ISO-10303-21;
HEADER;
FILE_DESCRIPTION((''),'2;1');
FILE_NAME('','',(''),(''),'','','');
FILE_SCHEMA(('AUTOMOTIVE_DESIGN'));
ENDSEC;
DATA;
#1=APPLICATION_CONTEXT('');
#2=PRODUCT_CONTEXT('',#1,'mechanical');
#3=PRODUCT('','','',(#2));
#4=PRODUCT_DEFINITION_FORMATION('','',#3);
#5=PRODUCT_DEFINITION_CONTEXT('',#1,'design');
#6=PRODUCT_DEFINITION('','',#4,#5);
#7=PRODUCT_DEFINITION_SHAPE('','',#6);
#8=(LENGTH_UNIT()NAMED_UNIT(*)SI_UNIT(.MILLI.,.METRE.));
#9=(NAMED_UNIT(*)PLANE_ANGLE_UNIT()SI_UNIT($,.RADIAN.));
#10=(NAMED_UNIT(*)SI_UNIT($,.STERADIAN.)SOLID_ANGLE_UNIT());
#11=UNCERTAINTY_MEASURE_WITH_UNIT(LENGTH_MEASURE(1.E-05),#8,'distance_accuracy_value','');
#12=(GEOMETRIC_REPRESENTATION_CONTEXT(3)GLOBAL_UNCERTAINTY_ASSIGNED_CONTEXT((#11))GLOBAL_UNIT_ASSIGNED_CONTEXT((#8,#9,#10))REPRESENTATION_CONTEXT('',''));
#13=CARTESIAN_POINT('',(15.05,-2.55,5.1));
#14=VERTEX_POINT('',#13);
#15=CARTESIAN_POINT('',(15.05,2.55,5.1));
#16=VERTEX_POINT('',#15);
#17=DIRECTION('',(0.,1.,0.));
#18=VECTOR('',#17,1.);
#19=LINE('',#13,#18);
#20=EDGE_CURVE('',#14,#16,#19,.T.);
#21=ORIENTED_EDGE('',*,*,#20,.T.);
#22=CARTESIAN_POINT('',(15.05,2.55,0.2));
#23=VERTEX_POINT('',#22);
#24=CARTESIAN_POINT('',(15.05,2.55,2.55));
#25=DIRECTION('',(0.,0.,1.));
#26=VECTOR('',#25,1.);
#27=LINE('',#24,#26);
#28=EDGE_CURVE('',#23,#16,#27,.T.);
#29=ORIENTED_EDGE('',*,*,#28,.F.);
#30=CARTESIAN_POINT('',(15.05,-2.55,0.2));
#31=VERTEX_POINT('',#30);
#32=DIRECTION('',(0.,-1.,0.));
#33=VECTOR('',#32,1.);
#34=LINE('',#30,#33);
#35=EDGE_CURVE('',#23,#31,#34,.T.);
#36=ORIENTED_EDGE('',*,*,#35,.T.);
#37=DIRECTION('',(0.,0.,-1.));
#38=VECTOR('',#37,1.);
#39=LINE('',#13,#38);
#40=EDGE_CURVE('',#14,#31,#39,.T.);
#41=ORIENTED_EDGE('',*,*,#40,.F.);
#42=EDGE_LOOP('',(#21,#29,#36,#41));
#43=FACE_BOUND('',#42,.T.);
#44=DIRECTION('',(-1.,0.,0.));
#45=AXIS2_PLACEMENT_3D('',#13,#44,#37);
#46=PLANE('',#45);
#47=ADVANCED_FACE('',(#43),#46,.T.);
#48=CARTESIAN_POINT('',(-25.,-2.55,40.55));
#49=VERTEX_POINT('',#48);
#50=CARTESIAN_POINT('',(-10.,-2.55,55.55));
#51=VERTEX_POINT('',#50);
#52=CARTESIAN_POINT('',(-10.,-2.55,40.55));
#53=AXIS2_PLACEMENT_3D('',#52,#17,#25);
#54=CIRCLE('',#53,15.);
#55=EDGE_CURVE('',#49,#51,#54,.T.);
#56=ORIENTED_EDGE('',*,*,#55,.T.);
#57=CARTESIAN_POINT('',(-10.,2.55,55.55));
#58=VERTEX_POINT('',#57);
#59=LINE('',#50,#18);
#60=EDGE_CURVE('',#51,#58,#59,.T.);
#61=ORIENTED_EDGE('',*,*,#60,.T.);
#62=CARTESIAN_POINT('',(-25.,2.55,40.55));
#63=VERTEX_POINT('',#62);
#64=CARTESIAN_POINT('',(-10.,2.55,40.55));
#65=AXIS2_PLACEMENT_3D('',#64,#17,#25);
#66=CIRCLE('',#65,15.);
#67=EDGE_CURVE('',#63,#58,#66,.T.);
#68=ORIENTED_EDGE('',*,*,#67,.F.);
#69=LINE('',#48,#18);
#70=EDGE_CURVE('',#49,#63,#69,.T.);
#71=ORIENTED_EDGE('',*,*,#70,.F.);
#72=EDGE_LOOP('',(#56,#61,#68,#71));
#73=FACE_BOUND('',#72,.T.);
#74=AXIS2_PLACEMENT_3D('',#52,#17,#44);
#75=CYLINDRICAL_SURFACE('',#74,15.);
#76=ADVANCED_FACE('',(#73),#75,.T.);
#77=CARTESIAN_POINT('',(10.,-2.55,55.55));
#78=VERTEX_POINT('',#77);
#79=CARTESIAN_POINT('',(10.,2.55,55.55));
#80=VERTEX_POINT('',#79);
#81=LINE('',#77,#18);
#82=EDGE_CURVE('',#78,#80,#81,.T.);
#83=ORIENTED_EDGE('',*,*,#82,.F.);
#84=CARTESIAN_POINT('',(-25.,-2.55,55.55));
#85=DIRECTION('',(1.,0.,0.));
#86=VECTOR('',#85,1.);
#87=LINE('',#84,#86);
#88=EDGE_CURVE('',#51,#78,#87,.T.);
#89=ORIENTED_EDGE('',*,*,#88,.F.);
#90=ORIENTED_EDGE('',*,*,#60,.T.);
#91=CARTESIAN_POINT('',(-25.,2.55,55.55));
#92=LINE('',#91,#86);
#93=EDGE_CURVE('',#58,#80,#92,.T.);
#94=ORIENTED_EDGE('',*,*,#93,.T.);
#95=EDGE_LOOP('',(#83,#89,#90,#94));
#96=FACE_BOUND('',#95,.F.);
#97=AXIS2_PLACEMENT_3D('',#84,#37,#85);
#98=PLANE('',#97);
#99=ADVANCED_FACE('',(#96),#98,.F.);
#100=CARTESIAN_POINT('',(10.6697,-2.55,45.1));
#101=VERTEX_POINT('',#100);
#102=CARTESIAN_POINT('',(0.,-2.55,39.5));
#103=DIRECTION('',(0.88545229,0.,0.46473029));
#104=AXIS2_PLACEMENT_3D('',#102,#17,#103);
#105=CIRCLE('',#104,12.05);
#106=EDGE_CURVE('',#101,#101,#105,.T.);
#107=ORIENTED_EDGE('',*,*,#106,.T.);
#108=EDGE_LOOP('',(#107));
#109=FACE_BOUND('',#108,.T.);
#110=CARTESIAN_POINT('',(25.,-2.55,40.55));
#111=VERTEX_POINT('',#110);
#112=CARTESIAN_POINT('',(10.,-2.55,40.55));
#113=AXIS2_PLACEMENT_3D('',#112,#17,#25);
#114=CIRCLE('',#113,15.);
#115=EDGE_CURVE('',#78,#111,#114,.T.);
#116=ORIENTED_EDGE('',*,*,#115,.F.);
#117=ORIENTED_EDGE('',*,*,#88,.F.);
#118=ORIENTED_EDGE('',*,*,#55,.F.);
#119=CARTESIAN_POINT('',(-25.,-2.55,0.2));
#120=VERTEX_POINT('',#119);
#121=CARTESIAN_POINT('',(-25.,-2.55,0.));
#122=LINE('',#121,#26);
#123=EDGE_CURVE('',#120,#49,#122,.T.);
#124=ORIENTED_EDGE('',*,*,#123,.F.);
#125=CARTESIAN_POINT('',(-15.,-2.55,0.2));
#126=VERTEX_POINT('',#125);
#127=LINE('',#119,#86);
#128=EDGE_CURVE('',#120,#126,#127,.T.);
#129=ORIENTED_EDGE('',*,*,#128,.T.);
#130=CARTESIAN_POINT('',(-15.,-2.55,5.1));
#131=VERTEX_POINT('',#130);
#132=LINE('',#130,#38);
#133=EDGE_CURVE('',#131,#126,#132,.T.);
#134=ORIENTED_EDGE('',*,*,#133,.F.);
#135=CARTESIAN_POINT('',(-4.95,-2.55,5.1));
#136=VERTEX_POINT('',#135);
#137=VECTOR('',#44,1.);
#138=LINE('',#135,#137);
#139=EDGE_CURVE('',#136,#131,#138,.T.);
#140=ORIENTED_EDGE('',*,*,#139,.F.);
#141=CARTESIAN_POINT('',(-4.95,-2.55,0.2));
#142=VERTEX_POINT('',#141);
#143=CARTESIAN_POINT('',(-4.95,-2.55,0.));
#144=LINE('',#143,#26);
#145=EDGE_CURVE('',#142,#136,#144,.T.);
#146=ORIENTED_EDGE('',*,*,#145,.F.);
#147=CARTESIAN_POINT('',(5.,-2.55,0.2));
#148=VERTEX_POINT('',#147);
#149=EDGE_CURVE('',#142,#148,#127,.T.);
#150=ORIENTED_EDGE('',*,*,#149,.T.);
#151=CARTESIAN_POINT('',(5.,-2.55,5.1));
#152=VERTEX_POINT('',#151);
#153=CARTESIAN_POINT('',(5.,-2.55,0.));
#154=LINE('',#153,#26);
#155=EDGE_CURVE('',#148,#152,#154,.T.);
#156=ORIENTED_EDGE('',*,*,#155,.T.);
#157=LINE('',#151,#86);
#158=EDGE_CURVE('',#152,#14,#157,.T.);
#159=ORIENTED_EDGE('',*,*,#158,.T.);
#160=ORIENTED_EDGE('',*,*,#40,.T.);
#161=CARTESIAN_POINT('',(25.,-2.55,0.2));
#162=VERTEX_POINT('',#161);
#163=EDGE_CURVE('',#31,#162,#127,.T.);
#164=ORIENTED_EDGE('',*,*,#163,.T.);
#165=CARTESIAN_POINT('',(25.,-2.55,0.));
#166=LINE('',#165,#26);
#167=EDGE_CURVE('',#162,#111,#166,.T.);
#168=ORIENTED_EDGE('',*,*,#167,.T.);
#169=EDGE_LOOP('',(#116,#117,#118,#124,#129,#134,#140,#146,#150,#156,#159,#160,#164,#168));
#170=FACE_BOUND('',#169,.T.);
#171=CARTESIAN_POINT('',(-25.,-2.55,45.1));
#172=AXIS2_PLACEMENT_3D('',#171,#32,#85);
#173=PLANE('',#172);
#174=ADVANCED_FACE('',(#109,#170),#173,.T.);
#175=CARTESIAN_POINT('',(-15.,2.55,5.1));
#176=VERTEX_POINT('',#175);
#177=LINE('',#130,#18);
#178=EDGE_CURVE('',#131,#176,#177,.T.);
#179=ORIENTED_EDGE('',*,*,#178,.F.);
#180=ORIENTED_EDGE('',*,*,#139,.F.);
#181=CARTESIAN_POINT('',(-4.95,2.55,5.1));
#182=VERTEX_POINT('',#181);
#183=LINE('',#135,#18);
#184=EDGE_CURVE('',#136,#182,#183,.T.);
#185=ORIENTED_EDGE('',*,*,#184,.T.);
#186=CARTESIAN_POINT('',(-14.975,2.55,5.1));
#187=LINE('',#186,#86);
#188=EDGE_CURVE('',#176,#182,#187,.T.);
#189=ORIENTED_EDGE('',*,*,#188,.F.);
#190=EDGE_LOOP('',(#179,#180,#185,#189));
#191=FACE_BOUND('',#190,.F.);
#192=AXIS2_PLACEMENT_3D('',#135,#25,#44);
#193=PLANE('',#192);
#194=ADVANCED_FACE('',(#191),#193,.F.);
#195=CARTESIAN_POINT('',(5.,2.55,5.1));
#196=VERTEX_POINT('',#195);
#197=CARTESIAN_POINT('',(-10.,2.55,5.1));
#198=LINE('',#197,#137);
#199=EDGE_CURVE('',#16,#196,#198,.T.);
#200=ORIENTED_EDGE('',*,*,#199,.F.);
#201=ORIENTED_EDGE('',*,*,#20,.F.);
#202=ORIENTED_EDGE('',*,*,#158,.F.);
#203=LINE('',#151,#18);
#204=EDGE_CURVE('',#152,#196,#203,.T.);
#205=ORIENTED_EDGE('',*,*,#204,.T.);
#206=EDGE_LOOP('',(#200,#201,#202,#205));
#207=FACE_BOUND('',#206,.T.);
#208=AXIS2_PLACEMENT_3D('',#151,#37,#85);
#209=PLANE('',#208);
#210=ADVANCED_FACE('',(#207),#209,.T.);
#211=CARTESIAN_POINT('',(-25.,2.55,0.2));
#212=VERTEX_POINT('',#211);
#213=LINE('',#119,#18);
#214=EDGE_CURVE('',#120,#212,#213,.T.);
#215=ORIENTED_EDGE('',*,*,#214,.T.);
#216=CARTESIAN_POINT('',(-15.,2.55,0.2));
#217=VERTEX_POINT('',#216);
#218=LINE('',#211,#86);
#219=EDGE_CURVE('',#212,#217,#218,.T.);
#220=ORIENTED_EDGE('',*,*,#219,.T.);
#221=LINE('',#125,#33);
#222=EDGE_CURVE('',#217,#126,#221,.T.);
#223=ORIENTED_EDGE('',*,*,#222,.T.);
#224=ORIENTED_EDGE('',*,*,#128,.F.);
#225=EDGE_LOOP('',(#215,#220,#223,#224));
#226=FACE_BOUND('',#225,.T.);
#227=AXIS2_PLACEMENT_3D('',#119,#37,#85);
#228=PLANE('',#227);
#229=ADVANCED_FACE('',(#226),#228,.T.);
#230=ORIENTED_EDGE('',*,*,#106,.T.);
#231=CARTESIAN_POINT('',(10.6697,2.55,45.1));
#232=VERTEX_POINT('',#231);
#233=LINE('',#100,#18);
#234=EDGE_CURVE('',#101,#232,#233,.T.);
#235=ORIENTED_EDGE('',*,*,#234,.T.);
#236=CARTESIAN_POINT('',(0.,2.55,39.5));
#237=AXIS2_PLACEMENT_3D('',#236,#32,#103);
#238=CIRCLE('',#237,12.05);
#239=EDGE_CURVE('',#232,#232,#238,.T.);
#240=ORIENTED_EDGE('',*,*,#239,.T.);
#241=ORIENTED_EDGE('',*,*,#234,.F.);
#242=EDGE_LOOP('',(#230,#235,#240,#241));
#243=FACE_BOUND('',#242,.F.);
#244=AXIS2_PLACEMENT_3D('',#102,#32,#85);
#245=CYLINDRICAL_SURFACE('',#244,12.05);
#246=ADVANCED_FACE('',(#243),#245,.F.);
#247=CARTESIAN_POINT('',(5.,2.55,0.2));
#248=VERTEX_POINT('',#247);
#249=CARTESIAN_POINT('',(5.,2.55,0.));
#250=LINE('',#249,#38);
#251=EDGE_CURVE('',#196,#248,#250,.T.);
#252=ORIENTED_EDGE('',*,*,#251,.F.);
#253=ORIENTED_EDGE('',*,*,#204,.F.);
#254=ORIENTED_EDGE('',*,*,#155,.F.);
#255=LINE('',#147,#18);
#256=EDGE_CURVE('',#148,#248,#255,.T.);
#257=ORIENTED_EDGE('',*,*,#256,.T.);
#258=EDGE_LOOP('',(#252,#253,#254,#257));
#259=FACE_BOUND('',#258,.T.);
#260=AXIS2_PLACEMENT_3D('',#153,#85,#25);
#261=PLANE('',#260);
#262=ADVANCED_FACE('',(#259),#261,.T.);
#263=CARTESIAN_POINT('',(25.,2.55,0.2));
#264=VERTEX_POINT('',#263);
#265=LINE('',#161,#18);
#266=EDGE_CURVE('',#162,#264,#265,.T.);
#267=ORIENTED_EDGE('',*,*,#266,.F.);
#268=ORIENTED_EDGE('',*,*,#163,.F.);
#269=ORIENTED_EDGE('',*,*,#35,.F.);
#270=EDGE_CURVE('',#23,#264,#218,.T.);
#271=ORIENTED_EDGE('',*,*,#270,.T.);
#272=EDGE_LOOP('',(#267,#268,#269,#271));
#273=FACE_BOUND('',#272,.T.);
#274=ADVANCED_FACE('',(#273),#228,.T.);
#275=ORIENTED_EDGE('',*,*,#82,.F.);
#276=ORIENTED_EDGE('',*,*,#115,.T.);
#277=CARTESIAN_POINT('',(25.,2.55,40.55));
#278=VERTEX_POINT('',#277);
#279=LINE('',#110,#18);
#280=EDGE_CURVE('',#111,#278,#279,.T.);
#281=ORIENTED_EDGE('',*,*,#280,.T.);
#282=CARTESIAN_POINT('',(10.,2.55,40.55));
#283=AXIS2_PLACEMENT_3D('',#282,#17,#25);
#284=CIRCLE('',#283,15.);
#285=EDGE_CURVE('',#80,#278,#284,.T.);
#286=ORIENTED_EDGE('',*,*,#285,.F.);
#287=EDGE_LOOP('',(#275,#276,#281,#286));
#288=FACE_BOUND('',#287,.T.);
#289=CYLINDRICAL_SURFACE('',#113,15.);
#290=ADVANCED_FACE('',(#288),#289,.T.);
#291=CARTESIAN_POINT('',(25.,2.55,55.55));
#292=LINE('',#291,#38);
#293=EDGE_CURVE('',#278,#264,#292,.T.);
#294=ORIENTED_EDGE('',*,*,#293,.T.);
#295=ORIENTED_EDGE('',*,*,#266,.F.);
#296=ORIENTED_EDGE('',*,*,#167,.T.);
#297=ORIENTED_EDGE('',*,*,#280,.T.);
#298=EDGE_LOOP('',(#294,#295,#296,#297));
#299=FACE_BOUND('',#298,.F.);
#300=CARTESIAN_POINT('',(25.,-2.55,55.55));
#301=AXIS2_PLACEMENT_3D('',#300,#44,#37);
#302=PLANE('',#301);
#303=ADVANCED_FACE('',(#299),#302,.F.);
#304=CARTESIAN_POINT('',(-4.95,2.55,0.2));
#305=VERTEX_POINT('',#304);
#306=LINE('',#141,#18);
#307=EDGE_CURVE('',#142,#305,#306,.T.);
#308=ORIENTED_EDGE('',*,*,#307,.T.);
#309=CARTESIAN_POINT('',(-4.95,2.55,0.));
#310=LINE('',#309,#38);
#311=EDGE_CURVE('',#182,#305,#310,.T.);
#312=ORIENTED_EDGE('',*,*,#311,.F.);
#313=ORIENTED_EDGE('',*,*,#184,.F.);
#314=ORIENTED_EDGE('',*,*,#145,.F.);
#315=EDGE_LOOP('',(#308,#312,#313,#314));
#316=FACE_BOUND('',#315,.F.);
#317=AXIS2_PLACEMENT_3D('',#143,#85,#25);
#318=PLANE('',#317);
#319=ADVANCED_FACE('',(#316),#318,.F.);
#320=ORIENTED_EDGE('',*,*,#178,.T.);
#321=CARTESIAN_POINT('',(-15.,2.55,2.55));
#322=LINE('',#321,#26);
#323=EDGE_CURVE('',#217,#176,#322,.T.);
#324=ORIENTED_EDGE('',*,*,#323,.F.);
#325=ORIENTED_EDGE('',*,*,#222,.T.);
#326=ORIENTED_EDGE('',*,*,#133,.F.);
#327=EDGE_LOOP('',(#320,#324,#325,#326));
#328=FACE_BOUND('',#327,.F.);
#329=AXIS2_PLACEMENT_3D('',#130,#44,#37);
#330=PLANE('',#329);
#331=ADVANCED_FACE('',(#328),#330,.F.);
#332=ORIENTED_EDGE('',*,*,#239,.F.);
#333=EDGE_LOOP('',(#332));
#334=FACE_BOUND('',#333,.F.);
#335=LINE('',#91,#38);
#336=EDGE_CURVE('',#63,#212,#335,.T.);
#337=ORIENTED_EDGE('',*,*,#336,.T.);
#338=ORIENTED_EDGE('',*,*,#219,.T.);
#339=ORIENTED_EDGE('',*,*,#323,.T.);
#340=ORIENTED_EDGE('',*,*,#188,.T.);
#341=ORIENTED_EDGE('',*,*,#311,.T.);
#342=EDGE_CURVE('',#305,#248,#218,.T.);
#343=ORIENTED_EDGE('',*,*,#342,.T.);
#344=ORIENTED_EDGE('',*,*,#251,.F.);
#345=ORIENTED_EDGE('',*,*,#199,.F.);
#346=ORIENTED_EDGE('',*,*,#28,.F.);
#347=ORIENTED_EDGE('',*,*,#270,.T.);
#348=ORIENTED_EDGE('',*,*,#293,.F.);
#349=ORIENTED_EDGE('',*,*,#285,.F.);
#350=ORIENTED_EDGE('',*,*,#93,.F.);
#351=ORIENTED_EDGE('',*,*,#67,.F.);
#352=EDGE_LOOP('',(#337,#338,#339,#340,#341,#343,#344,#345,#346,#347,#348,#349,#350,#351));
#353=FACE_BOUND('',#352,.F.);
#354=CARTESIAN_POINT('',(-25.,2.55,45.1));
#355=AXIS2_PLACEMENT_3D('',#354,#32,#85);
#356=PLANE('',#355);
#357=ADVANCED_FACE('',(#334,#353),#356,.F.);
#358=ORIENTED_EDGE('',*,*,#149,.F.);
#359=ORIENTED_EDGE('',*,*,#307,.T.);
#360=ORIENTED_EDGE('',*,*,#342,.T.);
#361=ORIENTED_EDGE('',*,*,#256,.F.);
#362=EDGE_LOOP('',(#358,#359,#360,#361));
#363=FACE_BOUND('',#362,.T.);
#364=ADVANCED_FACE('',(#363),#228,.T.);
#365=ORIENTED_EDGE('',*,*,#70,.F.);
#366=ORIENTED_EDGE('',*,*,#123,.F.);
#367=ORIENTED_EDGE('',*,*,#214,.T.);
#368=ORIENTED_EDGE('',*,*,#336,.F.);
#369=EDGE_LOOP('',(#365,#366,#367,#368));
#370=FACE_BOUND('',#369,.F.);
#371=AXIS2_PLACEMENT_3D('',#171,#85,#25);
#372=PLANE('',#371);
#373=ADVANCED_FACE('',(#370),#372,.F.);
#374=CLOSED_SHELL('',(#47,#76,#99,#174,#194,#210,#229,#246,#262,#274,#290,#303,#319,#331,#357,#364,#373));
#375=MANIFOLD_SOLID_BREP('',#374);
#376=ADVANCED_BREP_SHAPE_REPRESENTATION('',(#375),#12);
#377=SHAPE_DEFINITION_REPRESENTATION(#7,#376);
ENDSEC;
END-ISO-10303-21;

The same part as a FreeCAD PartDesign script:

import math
import FreeCAD as App
import Part
import Sketcher

V = App.Vector
Q = App.Units.Quantity


def edges_at(feature, points):
    """Names of the edges that pass closest to the given points."""
    edges = feature.Shape.Edges
    near = lambda p: min(range(len(edges)), key=lambda i: edges[i].distToShape(Part.Vertex(*p))[0])
    return sorted({f"Edge{near(p) + 1}" for p in points})


def add_polygon(sketch, points):
    """Adds a closed chain of lines whose ends are joined by coincident constraints."""
    first, n = sketch.GeometryCount, len(points)
    for a, b in zip(points, points[1:] + points[:1]):
        sketch.addGeometry(Part.LineSegment(App.Vector(*a, 0), App.Vector(*b, 0)), False)
    for i in range(n):
        sketch.addConstraint(Sketcher.Constraint("Coincident", first + i, 2, first + (i + 1) % n, 1))

doc = App.newDocument("Part")
params = doc.addObject("Spreadsheet::Sheet", "Params")
for row, (alias, value) in enumerate([
    ("sketch1_width", "50 mm"),
    ("sketch1_height", "5.1 mm"),
    ("pad1_length", "45.1 mm"),
    ("sketch2_height", "5.1 mm"),
    ("sketch2_width", "10.05 mm"),
    ("pocket1_length", "45.1 mm"),
    ("sketch3_radius", "12.05 mm"),
    ("pocket2_length", "45.1 mm"),
    ("sketch4_radius", "12.05 mm"),
    ("pad2_length", "5.1 mm"),
    ("sketch5_height", "0.2 mm"),
    ("fillet_radius", "15 mm"),
], start=1):
    params.set(f"A{row}", alias)
    params.set(f"B{row}", "=" + value)
    params.setAlias(f"B{row}", alias)

body = doc.addObject("PartDesign::Body", "Body")

sketch1 = body.newObject("Sketcher::SketchObject", "Sketch")
sketch1.AttachmentSupport = (doc.getObject("XY_Plane"), [""])
sketch1.MapMode = "FlatFace"
add_polygon(sketch1, [(-25, -3), (25, -3), (25, 3), (-25, 3)])
sketch1.addConstraint(Sketcher.Constraint("Horizontal", 0))
sketch1.addConstraint(Sketcher.Constraint("Vertical", 1))
sketch1.addConstraint(Sketcher.Constraint("Horizontal", 2))
sketch1.addConstraint(Sketcher.Constraint("Vertical", 3))
sketch1.addConstraint(Sketcher.Constraint("Symmetric", 0, 2, 2, 2, -1, 1))
sketch1.addConstraint(Sketcher.Constraint("DistanceX", 0, 1, 0, 2, Q("50 mm")))
sketch1.addConstraint(Sketcher.Constraint("DistanceY", 1, 1, 1, 2, Q("5.1 mm")))
sketch1.setExpression("Constraints[9]", "Params.sketch1_width")
sketch1.setExpression("Constraints[10]", "Params.sketch1_height")
pad1 = body.newObject("PartDesign::Pad", "Pad")
pad1.Profile = sketch1
pad1.setExpression("Length", "Params.pad1_length")

sketch2 = body.newObject("Sketcher::SketchObject", "Sketch001")
sketch2.AttachmentSupport = (doc.getObject("XZ_Plane"), [""])
sketch2.MapMode = "FlatFace"
sketch2.AttachmentOffset = App.Placement(V(0, 0, 2.55), App.Rotation())
add_polygon(sketch2, [(-15, 0), (-5, 0), (-5, 5), (-15, 5)])
add_polygon(sketch2, [(5, 0), (15, 0), (15, 5), (5, 5)])
sketch2.addConstraint(Sketcher.Constraint("Horizontal", 0))
sketch2.addConstraint(Sketcher.Constraint("Vertical", 1))
sketch2.addConstraint(Sketcher.Constraint("Horizontal", 2))
sketch2.addConstraint(Sketcher.Constraint("Vertical", 3))
sketch2.addConstraint(Sketcher.Constraint("Horizontal", 4))
sketch2.addConstraint(Sketcher.Constraint("Vertical", 5))
sketch2.addConstraint(Sketcher.Constraint("Horizontal", 6))
sketch2.addConstraint(Sketcher.Constraint("Vertical", 7))
sketch2.addConstraint(Sketcher.Constraint("PointOnObject", 0, 2, -1))
sketch2.addConstraint(Sketcher.Constraint("PointOnObject", 4, 2, -1))
sketch2.addConstraint(Sketcher.Constraint("Horizontal", 2, 2, 5, 2))
sketch2.addConstraint(Sketcher.Constraint("Equal", 2, 4))
sketch2.addConstraint(Sketcher.Constraint("DistanceY", 1, 1, 1, 2, Q("5.1 mm")))
sketch2.addConstraint(Sketcher.Constraint("DistanceX", 0, 1, 0, 2, Q("10.05 mm")))
sketch2.addConstraint(Sketcher.Constraint("DistanceX", 1, 2, 6, 2, Q("9.95 mm")))
sketch2.addConstraint(Sketcher.Constraint("DistanceX", 2, 2, -1, 1, Q("15 mm")))
sketch2.setExpression("Constraints[20]", "Params.sketch2_height")
sketch2.setExpression("Constraints[21]", "Params.sketch2_width")
pocket1 = body.newObject("PartDesign::Pocket", "Pocket")
pocket1.Profile = sketch2
pocket1.setExpression("Length", "Params.pocket1_length")

sketch3 = body.newObject("Sketcher::SketchObject", "Sketch002")
sketch3.AttachmentSupport = (doc.getObject("XZ_Plane"), [""])
sketch3.MapMode = "FlatFace"
sketch3.AttachmentOffset = App.Placement(V(0, 0, 2.55), App.Rotation())
sketch3.addGeometry(Part.LineSegment(V(11, 45, 0), V(-11, 45, 0)), False)
sketch3.addGeometry(Part.ArcOfCircle(Part.Circle(V(0, 40, 0), V(0, 0, 1), 12), math.radians(152), math.radians(388)), False)
sketch3.addConstraint(Sketcher.Constraint("Coincident", 0, 1, 1, 2))
sketch3.addConstraint(Sketcher.Constraint("Coincident", 1, 1, 0, 2))
sketch3.addConstraint(Sketcher.Constraint("Horizontal", 0))
sketch3.addConstraint(Sketcher.Constraint("PointOnObject", 1, 3, -2))
sketch3.addConstraint(Sketcher.Constraint("Radius", 1, Q("12.05 mm")))
sketch3.addConstraint(Sketcher.Constraint("DistanceY", 1, 3, 0, 1, Q("5.6 mm")))
sketch3.addConstraint(Sketcher.Constraint("DistanceY", -1, 1, 1, 3, Q("39.5 mm")))
sketch3.setExpression("Constraints[4]", "Params.sketch3_radius")
pocket2 = body.newObject("PartDesign::Pocket", "Pocket001")
pocket2.Profile = sketch3
pocket2.setExpression("Length", "Params.pocket2_length")

sketch4 = body.newObject("Sketcher::SketchObject", "Sketch003")
sketch4.AttachmentSupport = (doc.getObject("XZ_Plane"), [""])
sketch4.MapMode = "FlatFace"
sketch4.AttachmentOffset = App.Placement(V(0, 0, 2.55), App.Rotation())
sketch4.addGeometry(Part.LineSegment(V(-25, 56, 0), V(-25, 45, 0)), False)
sketch4.addGeometry(Part.LineSegment(V(-25, 45, 0), V(-11, 45, 0)), False)
sketch4.addGeometry(Part.ArcOfCircle(Part.Circle(V(0, 40, 0), V(0, 0, 1), 12), math.radians(28), math.radians(152)), False)
sketch4.addGeometry(Part.LineSegment(V(11, 45, 0), V(25, 45, 0)), False)
sketch4.addGeometry(Part.LineSegment(V(25, 45, 0), V(25, 56, 0)), False)
sketch4.addGeometry(Part.LineSegment(V(25, 56, 0), V(-25, 56, 0)), False)
sketch4.addConstraint(Sketcher.Constraint("Coincident", 0, 2, 1, 1))
sketch4.addConstraint(Sketcher.Constraint("Coincident", 1, 2, 2, 2))
sketch4.addConstraint(Sketcher.Constraint("Coincident", 2, 1, 3, 1))
sketch4.addConstraint(Sketcher.Constraint("Coincident", 3, 2, 4, 1))
sketch4.addConstraint(Sketcher.Constraint("Coincident", 4, 2, 5, 1))
sketch4.addConstraint(Sketcher.Constraint("Coincident", 5, 2, 0, 1))
sketch4.addConstraint(Sketcher.Constraint("Vertical", 0))
sketch4.addConstraint(Sketcher.Constraint("Horizontal", 1))
sketch4.addConstraint(Sketcher.Constraint("Horizontal", 3))
sketch4.addConstraint(Sketcher.Constraint("Vertical", 4))
sketch4.addConstraint(Sketcher.Constraint("Horizontal", 5))
sketch4.addConstraint(Sketcher.Constraint("Symmetric", 1, 2, 2, 1, -2))
sketch4.addConstraint(Sketcher.Constraint("Equal", 1, 3))
sketch4.addConstraint(Sketcher.Constraint("Radius", 2, Q("12.05 mm")))
sketch4.addConstraint(Sketcher.Constraint("DistanceX", 0, 2, -1, 1, Q("25 mm")))
sketch4.addConstraint(Sketcher.Constraint("DistanceY", 2, 3, 0, 2, Q("5.6 mm")))
sketch4.addConstraint(Sketcher.Constraint("DistanceY", 2, 3, 4, 2, Q("16.05 mm")))
sketch4.addConstraint(Sketcher.Constraint("DistanceY", -1, 1, 2, 3, Q("39.5 mm")))
sketch4.setExpression("Constraints[13]", "Params.sketch4_radius")
pad2 = body.newObject("PartDesign::Pad", "Pad001")
pad2.Profile = sketch4
pad2.setExpression("Length", "Params.pad2_length")
pad2.Reversed = True

sketch5 = body.newObject("Sketcher::SketchObject", "Sketch004")
sketch5.AttachmentSupport = (doc.getObject("XZ_Plane"), [""])
sketch5.MapMode = "FlatFace"
sketch5.AttachmentOffset = App.Placement(V(0, 0, 2.55), App.Rotation())
add_polygon(sketch5, [(25, 0.2), (-25, 0.2), (-25, 0), (25, 0)])
sketch5.addConstraint(Sketcher.Constraint("Horizontal", 0))
sketch5.addConstraint(Sketcher.Constraint("Vertical", 1))
sketch5.addConstraint(Sketcher.Constraint("Horizontal", 2))
sketch5.addConstraint(Sketcher.Constraint("Vertical", 3))
sketch5.addConstraint(Sketcher.Constraint("Symmetric", 1, 2, 2, 2, -1, 1))
sketch5.addConstraint(Sketcher.Constraint("DistanceY", 1, 2, 1, 1, Q("0.2 mm")))
sketch5.addConstraint(Sketcher.Constraint("DistanceX", 0, 2, -1, 1, Q("25 mm")))
sketch5.setExpression("Constraints[9]", "Params.sketch5_height")
pocket3 = body.newObject("PartDesign::Pocket", "Pocket002")
pocket3.Profile = sketch5
pocket3.Type = "ThroughAll"
doc.recompute()

fillet = body.newObject("PartDesign::Fillet", "Fillet")
fillet.Base = (pocket3, edges_at(pocket3, [(25, 0, 55.55), (-25, 0, 55.55)]))
fillet.setExpression("Radius", "Params.fillet_radius")

doc.recompute()
